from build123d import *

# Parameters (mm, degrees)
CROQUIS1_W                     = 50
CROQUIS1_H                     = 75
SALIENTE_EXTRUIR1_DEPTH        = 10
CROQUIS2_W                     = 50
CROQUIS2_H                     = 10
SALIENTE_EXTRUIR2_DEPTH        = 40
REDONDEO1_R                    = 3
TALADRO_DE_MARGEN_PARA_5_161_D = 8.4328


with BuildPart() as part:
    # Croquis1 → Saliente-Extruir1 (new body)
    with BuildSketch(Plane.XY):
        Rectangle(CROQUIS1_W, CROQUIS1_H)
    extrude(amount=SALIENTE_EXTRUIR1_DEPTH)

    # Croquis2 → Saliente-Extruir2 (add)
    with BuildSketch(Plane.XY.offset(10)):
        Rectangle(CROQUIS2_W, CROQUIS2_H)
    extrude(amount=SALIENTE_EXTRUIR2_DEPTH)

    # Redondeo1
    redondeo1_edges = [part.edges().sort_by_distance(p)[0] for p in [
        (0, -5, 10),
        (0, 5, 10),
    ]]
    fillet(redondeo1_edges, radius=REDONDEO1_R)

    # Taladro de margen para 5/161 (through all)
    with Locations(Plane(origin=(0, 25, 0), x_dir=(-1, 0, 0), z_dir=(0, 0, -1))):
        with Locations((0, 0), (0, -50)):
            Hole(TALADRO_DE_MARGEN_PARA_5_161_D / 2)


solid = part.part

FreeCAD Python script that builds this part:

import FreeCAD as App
import Part
import Sketcher
Q = App.Units.Quantity


def edges_at(feature, points):
    """Names of the edges that pass closest to the given points."""
    edges = feature.Shape.Edges
    near = lambda p: min(range(len(edges)), key=lambda i: edges[i].distToShape(Part.Vertex(*p))[0])
    return sorted({f"Edge{near(p) + 1}" for p in points})


def add_polygon(sketch, points):
    """Adds a closed chain of lines whose ends are joined by coincident constraints."""
    first, n = sketch.GeometryCount, len(points)
    for a, b in zip(points, points[1:] + points[:1]):
        sketch.addGeometry(Part.LineSegment(App.Vector(*a, 0), App.Vector(*b, 0)), False)
    for i in range(n):
        sketch.addConstraint(Sketcher.Constraint("Coincident", first + i, 2, first + (i + 1) % n, 1))

doc = App.newDocument("Part")
body = doc.addObject("PartDesign::Body", "Body")

sketch1 = doc.addObject("Sketcher::SketchObject", "Sketch")
body.addObject(sketch1)
sketch1.AttachmentSupport = (doc.XY_Plane, [""])
sketch1.MapMode = "FlatFace"
add_polygon(sketch1, [(-25, 38), (-25, -38), (25, -38), (25, 38)])
sketch1.addConstraint([
    Sketcher.Constraint("Vertical", 0),
    Sketcher.Constraint("Horizontal", 1),
    Sketcher.Constraint("Vertical", 2),
    Sketcher.Constraint("Horizontal", 3),
    Sketcher.Constraint("Symmetric", 0, 2, 2, 2, -1, 1),
    Sketcher.Constraint("DistanceX", 1, 1, 1, 2, Q("50 mm")),
    Sketcher.Constraint("DistanceY", 0, 2, 0, 1, Q("75 mm")),
])
pad1 = doc.addObject("PartDesign::Pad", "Pad")
body.addObject(pad1)
pad1.Profile = sketch1
pad1.Length = 10

sketch2 = doc.addObject("Sketcher::SketchObject", "Sketch001")
body.addObject(sketch2)
sketch2.AttachmentSupport = (doc.XY_Plane, [""])
sketch2.MapMode = "FlatFace"
sketch2.AttachmentOffset = App.Placement(App.Vector(0, 0, 10), App.Rotation())
add_polygon(sketch2, [(-25, 5), (-25, -5), (25, -5), (25, 5)])
sketch2.addConstraint([
    Sketcher.Constraint("Vertical", 0),
    Sketcher.Constraint("Horizontal", 1),
    Sketcher.Constraint("Vertical", 2),
    Sketcher.Constraint("Horizontal", 3),
    Sketcher.Constraint("Symmetric", 0, 2, 2, 2, -1, 1),
    Sketcher.Constraint("DistanceX", 1, 1, 1, 2, Q("50 mm")),
    Sketcher.Constraint("DistanceY", 0, 2, 0, 1, Q("10 mm")),
])
pad2 = doc.addObject("PartDesign::Pad", "Pad001")
body.addObject(pad2)
pad2.Profile = sketch2
pad2.Length = 40
doc.recompute()

fillet = doc.addObject("PartDesign::Fillet", "Fillet")
body.addObject(fillet)
fillet.Base = (pad2, edges_at(pad2, [(0, -5, 10), (0, 5, 10)]))
fillet.Radius = 3

sketch3 = doc.addObject("Sketcher::SketchObject", "Sketch002")
body.addObject(sketch3)
sketch3.AttachmentSupport = (doc.XY_Plane, [""])
sketch3.MapMode = "FlatFace"
sketch3.addGeometry([
    Part.Circle(App.Vector(0, 25, 0), App.Vector(0, 0, 1), 4.2),
    Part.Circle(App.Vector(0, -25, 0), App.Vector(0, 0, 1), 4.2),
], False)
sketch3.addConstraint([
    Sketcher.Constraint("Equal", 0, 1),
    Sketcher.Constraint("Symmetric", 0, 3, 1, 3, -1, 1),
    Sketcher.Constraint("PointOnObject", 0, 3, -2),
    Sketcher.Constraint("DistanceY", -1, 1, 0, 3, Q("25 mm")),
    Sketcher.Constraint("Diameter", 0, Q("8.4328 mm")),
])
doc.recompute()
hole = doc.addObject("PartDesign::Hole", "Hole")
body.addObject(hole)
hole.Profile = sketch3
hole.ThreadType = "None"
hole.Diameter = 8.4328
hole.DepthType = "ThroughAll"
hole.Reversed = True

doc.recompute()
